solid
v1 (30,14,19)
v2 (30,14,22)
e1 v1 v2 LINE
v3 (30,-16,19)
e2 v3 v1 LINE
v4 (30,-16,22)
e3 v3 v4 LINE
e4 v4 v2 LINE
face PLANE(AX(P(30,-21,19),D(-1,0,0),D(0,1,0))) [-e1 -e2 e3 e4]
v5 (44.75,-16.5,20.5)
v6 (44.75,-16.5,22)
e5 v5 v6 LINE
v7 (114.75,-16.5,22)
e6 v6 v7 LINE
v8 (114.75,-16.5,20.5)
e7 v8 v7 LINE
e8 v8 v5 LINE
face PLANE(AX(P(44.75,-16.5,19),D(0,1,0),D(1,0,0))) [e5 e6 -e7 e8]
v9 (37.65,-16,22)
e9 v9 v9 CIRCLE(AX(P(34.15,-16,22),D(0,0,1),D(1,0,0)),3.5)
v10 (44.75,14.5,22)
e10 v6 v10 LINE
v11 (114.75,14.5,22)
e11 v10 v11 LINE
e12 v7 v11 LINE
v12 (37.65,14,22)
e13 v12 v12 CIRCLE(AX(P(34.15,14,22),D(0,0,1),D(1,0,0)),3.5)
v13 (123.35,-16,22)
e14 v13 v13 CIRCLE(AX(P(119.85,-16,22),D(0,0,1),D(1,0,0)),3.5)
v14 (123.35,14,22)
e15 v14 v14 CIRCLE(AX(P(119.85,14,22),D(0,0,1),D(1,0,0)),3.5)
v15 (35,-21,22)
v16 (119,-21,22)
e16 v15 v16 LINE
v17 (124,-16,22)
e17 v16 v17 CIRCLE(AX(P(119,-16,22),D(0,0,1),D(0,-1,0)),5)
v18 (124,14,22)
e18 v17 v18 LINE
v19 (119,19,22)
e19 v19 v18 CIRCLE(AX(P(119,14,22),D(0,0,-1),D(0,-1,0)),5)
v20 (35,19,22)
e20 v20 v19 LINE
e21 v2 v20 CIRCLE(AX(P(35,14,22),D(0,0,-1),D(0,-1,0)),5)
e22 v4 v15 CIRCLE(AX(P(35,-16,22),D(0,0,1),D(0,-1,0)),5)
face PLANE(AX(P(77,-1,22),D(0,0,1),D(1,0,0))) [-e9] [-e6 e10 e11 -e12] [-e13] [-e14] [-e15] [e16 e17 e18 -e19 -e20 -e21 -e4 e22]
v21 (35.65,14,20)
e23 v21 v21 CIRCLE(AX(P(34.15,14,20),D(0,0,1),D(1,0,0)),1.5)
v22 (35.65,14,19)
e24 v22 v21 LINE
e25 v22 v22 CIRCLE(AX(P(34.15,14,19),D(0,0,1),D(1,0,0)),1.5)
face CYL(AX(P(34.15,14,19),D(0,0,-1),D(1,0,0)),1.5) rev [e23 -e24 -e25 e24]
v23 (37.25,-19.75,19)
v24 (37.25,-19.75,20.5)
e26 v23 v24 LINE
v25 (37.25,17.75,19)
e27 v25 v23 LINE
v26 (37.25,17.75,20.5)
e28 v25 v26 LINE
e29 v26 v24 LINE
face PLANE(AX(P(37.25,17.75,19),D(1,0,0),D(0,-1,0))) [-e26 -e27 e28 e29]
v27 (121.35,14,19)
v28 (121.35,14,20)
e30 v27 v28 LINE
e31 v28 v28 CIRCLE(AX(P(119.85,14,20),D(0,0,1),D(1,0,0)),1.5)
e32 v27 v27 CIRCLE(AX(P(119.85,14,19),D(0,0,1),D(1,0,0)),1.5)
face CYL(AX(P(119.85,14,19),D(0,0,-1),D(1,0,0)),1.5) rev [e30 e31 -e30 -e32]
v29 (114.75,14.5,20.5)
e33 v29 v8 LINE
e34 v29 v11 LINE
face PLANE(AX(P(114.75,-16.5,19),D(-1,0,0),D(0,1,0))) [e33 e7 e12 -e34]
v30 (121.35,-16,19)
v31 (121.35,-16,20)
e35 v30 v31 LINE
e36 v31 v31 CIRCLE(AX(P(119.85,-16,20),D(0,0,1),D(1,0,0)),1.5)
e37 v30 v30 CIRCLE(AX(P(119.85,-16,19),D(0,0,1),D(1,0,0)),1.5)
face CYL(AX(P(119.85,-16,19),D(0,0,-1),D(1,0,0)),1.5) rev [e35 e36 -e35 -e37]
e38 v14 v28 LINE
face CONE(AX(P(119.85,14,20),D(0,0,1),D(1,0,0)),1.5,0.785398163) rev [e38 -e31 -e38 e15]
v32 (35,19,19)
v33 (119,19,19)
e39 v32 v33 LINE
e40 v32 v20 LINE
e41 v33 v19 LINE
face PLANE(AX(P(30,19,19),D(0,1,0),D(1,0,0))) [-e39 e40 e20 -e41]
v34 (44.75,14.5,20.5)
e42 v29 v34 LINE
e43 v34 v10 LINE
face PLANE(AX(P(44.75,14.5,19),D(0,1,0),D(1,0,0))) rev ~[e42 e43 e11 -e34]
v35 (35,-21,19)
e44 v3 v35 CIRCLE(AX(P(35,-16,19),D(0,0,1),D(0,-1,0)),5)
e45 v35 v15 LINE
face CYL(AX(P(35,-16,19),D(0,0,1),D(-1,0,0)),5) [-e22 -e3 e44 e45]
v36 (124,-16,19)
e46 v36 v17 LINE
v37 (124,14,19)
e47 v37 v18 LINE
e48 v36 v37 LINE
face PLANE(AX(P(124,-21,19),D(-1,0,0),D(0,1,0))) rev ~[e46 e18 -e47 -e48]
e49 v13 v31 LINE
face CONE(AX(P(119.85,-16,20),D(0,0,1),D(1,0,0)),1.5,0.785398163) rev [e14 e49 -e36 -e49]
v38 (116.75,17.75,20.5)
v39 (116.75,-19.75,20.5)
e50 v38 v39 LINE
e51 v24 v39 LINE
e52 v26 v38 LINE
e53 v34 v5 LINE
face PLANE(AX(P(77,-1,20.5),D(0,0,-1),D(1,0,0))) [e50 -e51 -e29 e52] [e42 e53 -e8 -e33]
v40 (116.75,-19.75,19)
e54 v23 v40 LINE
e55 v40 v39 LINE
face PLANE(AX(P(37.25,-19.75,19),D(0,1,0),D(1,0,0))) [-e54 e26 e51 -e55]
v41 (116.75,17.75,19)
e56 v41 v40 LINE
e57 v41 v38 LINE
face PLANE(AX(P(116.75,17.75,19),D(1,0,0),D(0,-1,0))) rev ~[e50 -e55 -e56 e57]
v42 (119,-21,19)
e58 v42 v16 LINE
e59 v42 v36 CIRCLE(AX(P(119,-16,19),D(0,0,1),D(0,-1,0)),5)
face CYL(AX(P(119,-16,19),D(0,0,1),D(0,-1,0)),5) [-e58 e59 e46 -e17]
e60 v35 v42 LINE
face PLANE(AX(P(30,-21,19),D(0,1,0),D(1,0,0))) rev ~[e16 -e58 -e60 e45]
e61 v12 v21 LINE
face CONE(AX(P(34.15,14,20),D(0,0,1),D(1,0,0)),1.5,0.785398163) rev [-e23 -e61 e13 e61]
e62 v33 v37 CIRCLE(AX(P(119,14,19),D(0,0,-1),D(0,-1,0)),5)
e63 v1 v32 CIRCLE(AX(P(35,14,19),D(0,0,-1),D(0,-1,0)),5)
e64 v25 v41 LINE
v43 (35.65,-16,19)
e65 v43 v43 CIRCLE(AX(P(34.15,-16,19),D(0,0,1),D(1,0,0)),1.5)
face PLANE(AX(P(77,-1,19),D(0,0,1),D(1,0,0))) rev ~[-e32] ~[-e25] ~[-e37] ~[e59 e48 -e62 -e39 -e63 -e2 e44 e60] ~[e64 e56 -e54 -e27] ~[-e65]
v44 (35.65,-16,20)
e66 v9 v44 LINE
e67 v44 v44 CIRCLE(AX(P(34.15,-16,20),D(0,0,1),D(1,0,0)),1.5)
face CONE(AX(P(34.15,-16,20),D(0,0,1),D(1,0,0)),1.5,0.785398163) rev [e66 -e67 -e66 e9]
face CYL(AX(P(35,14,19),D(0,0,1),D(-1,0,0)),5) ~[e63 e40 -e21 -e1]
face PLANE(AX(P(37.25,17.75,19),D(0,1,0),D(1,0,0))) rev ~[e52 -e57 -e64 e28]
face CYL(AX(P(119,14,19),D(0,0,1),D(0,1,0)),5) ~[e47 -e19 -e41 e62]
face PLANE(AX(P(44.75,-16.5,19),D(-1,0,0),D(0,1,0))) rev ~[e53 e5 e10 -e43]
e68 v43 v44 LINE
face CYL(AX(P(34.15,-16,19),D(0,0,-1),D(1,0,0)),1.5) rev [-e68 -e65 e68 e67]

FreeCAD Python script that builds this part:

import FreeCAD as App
import Part
import Sketcher

V = App.Vector
Q = App.Units.Quantity


def edges_at(feature, points):
    """Names of the edges that pass closest to the given points."""
    edges = feature.Shape.Edges
    near = lambda p: min(range(len(edges)), key=lambda i: edges[i].distToShape(Part.Vertex(*p))[0])
    return sorted({f"Edge{near(p) + 1}" for p in points})


def add_polygon(sketch, points):
    """Adds a closed chain of lines whose ends are joined by coincident constraints."""
    first, n = sketch.GeometryCount, len(points)
    for a, b in zip(points, points[1:] + points[:1]):
        sketch.addGeometry(Part.LineSegment(App.Vector(*a, 0), App.Vector(*b, 0)), False)
    for i in range(n):
        sketch.addConstraint(Sketcher.Constraint("Coincident", first + i, 2, first + (i + 1) % n, 1))

doc = App.newDocument("Part")
body = doc.addObject("PartDesign::Body", "Body")

# Sketch on XY plane
sketch1 = doc.addObject("Sketcher::SketchObject", "Sketch")
body.addObject(sketch1)
sketch1.AttachmentSupport = (doc.XY_Plane, [""])
sketch1.MapMode = "FlatFace"
add_polygon(sketch1, [(-47, 20), (-47, -20), (47, -20), (47, 20)])  # lines 0-3
sketch1.addGeometry(Part.Circle(V(-42.85, -15, 0), V(0, 0, 1), 1.5), False)  # 4
sketch1.addGeometry(Part.Circle(V(42.85, -15, 0), V(0, 0, 1), 1.5), False)  # 5
sketch1.addGeometry(Part.Circle(V(-42.85, 15, 0), V(0, 0, 1), 1.5), False)  # 6
add_polygon(sketch1, [(37.75, -15.5), (-32.25, -15.5), (-32.25, 15.5), (37.75, 15.5)])  # lines 7-10
sketch1.addGeometry(Part.Circle(V(42.85, 15, 0), V(0, 0, 1), 1.5), False)  # 11
sketch1.addConstraint([
    Sketcher.Constraint("Vertical", 0),
    Sketcher.Constraint("Horizontal", 1),
    Sketcher.Constraint("Vertical", 2),
    Sketcher.Constraint("Horizontal", 3),
    Sketcher.Constraint("Horizontal", 7),
    Sketcher.Constraint("Vertical", 8),
    Sketcher.Constraint("Horizontal", 9),
    Sketcher.Constraint("Vertical", 10),
    Sketcher.Constraint("Equal", 4, 5),
    Sketcher.Constraint("Equal", 5, 6),
    Sketcher.Constraint("Equal", 6, 11),
    Sketcher.Constraint("Symmetric", 5, 3, 6, 3, -1, 1),
    Sketcher.Constraint("Symmetric", 4, 3, 11, 3, -1, 1),
    Sketcher.Constraint("Symmetric", 0, 2, 2, 2, -1, 1),
    Sketcher.Constraint("Symmetric", 4, 3, 5, 3, -2),
    Sketcher.Constraint("Diameter", 4, Q("3 mm")),
    Sketcher.Constraint("DistanceX", 1, 1, 1, 2, Q("94 mm")),
    Sketcher.Constraint("DistanceX", 7, 2, 7, 1, Q("70 mm")),
    Sketcher.Constraint("DistanceY", 0, 2, 0, 1, Q("40 mm")),
    Sketcher.Constraint("DistanceY", 8, 1, 8, 2, Q("31 mm")),
    Sketcher.Constraint("DistanceY", 4, 3, -1, 1, Q("15 mm")),
    Sketcher.Constraint("DistanceY", 7, 2, -1, 1, Q("15.5 mm")),
    Sketcher.Constraint("DistanceX", 4, 3, 5, 3, Q("85.7 mm")),
    Sketcher.Constraint("DistanceX", 4, 3, 7, 2, Q("10.6 mm")),
])
pad1 = doc.addObject("PartDesign::Pad", "Pad")
body.addObject(pad1)
pad1.Profile = sketch1
pad1.Length = 3

# Sketch on XY plane
sketch2 = doc.addObject("Sketcher::SketchObject", "Sketch001")
body.addObject(sketch2)
sketch2.AttachmentSupport = (doc.XY_Plane, [""])
sketch2.MapMode = "FlatFace"
add_polygon(sketch2, [(-39.75, -18.75), (-39.75, 18.75), (39.75, 18.75), (39.75, -18.75)])  # lines 0-3
sketch2.addConstraint([
    Sketcher.Constraint("Vertical", 0),
    Sketcher.Constraint("Horizontal", 1),
    Sketcher.Constraint("Vertical", 2),
    Sketcher.Constraint("Horizontal", 3),
    Sketcher.Constraint("Symmetric", 0, 2, 2, 2, -1, 1),
    Sketcher.Constraint("DistanceX", 1, 1, 1, 2, Q("79.5 mm")),
    Sketcher.Constraint("DistanceY", 0, 1, 0, 2, Q("37.5 mm")),
])
pocket1 = doc.addObject("PartDesign::Pocket", "Pocket")
body.addObject(pocket1)
pocket1.Profile = sketch2
pocket1.Length = 1.5
pocket1.Reversed = True
doc.recompute()

fillet = doc.addObject("PartDesign::Fillet", "Fillet")
body.addObject(fillet)
fillet.Base = (pocket1, edges_at(pocket1, [
    (-47, -20, 1.5),
    (-47, 20, 1.5),
    (47, -20, 1.5),
    (47, 20, 1.5),
]))
fillet.Radius = 5
doc.recompute()

chamfer = doc.addObject("PartDesign::Chamfer", "Chamfer")
body.addObject(chamfer)
chamfer.Base = (fillet, edges_at(fillet, [
    (41.35, -15, 3),
    (41.35, 15, 3),
    (-44.35, -15, 3),
    (-44.35, 15, 3),
]))
chamfer.Size = 2
body2 = doc.addObject("PartDesign::Body", "Body001")
doc.recompute()

body.Placement = App.Placement(V(77, -1, 19), App.Rotation(V(0, 0, 1), 0))
boolean = doc.addObject("PartDesign::Boolean", "Boolean")
body2.addObject(boolean)
boolean.Type = "Fuse"
boolean.addObjects([body])

doc.recompute()
